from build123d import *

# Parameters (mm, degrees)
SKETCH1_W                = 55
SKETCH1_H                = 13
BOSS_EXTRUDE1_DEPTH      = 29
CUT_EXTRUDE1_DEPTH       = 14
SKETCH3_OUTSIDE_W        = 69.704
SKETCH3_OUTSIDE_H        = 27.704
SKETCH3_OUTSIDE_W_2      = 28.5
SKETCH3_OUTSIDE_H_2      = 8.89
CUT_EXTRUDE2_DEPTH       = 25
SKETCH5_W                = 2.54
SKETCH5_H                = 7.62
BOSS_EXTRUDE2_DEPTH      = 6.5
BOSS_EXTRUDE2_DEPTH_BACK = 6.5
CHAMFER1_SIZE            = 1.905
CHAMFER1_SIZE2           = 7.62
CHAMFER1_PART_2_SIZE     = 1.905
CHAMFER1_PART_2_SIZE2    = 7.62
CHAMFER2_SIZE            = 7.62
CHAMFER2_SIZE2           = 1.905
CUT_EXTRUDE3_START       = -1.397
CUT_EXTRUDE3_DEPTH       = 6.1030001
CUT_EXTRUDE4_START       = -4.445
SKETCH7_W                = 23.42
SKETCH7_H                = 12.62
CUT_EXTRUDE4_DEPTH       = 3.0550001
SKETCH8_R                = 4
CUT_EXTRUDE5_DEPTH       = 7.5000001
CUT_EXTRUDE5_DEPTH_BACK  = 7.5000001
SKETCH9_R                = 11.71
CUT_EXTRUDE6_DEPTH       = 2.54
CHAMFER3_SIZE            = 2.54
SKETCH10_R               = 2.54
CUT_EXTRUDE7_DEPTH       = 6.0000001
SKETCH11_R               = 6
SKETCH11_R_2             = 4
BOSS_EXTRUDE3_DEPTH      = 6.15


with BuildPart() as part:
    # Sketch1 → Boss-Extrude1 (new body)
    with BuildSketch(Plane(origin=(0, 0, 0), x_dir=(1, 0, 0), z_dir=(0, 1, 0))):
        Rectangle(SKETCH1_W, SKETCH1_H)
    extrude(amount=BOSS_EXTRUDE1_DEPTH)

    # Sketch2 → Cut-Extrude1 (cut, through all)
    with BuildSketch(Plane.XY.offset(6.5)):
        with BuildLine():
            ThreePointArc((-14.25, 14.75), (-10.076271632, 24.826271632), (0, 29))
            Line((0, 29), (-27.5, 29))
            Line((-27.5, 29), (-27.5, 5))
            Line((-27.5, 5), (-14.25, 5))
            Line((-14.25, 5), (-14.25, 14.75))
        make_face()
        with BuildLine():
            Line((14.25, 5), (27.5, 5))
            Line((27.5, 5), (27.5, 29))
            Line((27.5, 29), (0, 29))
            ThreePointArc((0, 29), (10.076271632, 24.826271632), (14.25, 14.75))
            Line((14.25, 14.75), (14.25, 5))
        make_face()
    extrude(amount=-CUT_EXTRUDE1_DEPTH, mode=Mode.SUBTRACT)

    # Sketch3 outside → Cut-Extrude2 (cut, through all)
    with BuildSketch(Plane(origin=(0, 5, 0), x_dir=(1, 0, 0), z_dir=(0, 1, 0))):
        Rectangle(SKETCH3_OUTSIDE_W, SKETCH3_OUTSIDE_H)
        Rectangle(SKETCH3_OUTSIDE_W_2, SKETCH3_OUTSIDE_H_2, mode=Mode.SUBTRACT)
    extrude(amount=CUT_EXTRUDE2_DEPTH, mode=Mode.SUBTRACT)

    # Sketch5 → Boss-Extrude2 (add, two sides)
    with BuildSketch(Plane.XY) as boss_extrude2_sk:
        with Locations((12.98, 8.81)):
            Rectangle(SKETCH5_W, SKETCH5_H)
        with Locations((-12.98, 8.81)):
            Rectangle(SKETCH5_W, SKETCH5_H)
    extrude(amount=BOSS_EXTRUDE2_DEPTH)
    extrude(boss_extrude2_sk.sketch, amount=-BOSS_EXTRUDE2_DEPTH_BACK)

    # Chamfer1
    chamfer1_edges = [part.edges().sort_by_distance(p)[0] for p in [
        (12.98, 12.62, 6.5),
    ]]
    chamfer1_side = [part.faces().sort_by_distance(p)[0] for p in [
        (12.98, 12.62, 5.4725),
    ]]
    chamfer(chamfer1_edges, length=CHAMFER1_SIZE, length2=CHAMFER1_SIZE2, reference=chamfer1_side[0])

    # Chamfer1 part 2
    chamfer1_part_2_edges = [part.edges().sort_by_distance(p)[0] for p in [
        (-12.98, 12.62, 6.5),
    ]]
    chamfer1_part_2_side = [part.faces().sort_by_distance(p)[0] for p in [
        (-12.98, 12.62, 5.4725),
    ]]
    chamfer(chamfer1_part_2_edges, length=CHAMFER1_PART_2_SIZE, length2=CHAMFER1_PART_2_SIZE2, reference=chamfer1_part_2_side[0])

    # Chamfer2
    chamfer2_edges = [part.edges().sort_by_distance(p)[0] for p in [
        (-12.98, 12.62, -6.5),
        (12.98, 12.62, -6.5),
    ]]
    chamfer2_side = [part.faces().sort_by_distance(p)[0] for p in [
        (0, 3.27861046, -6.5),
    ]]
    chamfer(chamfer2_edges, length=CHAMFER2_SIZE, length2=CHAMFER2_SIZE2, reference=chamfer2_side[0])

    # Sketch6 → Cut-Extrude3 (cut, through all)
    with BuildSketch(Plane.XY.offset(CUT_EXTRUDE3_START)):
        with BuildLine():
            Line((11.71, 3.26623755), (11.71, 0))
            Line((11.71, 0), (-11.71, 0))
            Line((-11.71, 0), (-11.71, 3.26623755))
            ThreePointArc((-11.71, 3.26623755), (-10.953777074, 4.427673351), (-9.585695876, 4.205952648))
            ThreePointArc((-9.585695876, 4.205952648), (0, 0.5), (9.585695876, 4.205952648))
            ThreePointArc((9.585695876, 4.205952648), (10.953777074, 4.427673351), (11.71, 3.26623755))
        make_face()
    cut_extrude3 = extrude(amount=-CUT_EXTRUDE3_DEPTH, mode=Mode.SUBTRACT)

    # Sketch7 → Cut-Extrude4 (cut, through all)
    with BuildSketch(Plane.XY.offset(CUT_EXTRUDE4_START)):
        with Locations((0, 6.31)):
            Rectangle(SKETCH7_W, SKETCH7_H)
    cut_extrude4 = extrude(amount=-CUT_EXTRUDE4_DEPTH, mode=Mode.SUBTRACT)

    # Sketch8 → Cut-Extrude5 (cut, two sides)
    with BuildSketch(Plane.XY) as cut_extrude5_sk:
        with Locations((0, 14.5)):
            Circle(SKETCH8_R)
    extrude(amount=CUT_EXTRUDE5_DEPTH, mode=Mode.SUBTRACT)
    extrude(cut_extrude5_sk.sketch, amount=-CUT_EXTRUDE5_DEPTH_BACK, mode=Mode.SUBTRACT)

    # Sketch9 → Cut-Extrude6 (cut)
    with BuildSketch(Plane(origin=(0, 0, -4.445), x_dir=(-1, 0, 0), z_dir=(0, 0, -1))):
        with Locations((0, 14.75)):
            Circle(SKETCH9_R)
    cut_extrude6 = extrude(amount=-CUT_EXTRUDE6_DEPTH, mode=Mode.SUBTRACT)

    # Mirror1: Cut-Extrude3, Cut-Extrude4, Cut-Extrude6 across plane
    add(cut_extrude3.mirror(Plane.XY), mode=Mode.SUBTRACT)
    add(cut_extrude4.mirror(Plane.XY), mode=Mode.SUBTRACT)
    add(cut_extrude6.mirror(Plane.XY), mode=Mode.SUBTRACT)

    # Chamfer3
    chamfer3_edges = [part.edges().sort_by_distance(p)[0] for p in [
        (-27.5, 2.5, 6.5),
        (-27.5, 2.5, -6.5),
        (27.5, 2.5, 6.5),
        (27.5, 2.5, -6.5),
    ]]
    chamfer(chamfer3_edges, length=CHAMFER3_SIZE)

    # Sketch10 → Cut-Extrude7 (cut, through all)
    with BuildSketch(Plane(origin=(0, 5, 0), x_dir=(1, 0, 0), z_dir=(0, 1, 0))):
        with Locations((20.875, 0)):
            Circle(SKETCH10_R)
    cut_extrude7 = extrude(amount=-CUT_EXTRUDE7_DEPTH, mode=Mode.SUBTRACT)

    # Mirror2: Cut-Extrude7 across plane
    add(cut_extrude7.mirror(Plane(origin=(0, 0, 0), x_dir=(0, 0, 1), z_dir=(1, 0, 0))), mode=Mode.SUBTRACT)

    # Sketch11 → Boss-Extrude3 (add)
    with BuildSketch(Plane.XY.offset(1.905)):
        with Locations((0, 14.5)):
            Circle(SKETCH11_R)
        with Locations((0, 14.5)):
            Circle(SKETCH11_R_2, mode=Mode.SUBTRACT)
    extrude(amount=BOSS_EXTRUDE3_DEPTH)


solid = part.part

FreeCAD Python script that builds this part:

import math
import FreeCAD as App
import Part
import Sketcher
Q = App.Units.Quantity


def edges_at(feature, points):
    """Names of the edges that pass closest to the given points."""
    edges = feature.Shape.Edges
    near = lambda p: min(range(len(edges)), key=lambda i: edges[i].distToShape(Part.Vertex(*p))[0])
    return sorted({f"Edge{near(p) + 1}" for p in points})


def add_polygon(sketch, points):
    """Adds a closed chain of lines whose ends are joined by coincident constraints."""
    first, n = sketch.GeometryCount, len(points)
    for a, b in zip(points, points[1:] + points[:1]):
        sketch.addGeometry(Part.LineSegment(App.Vector(*a, 0), App.Vector(*b, 0)), False)
    for i in range(n):
        sketch.addConstraint(Sketcher.Constraint("Coincident", first + i, 2, first + (i + 1) % n, 1))

doc = App.newDocument("Part")
body = doc.addObject("PartDesign::Body", "Body")

# Sketch on XZ plane
sketch1 = doc.addObject("Sketcher::SketchObject", "Sketch")
body.addObject(sketch1)
sketch1.AttachmentSupport = (doc.XZ_Plane, [""])
sketch1.MapMode = "FlatFace"
add_polygon(sketch1, [(-28, -6), (-28, 6), (28, 6), (28, -6)])  # lines 0-3
sketch1.addConstraint(Sketcher.Constraint("Vertical", 0))
sketch1.addConstraint(Sketcher.Constraint("Horizontal", 1))
sketch1.addConstraint(Sketcher.Constraint("Vertical", 2))
sketch1.addConstraint(Sketcher.Constraint("Horizontal", 3))
sketch1.addConstraint(Sketcher.Constraint("Symmetric", 0, 2, 2, 2, -1, 1))
sketch1.addConstraint(Sketcher.Constraint("DistanceX", 1, 1, 1, 2, Q("55 mm")))
sketch1.addConstraint(Sketcher.Constraint("DistanceY", 0, 1, 0, 2, Q("13 mm")))
pad1 = doc.addObject("PartDesign::Pad", "Pad")
body.addObject(pad1)
pad1.Profile = sketch1
pad1.Length = 29
pad1.Reversed = True

# Sketch on XY plane
sketch2 = doc.addObject("Sketcher::SketchObject", "Sketch001")
body.addObject(sketch2)
sketch2.AttachmentSupport = (doc.XY_Plane, [""])
sketch2.MapMode = "FlatFace"
sketch2.AttachmentOffset = App.Placement(App.Vector(0, 0, 6.5), App.Rotation())
sketch2.addGeometry(Part.ArcOfCircle(Part.Circle(App.Vector(0, 15, 0), App.Vector(0, 0, 1), 14), math.radians(90), math.radians(180)), False)
sketch2.addGeometry(Part.LineSegment(App.Vector(0, 29, 0), App.Vector(-28, 29, 0)), False)
sketch2.addGeometry(Part.LineSegment(App.Vector(-28, 29, 0), App.Vector(-28, 5, 0)), False)
sketch2.addGeometry(Part.LineSegment(App.Vector(-28, 5, 0), App.Vector(-14, 5, 0)), False)
sketch2.addGeometry(Part.LineSegment(App.Vector(-14, 5, 0), App.Vector(-14, 15, 0)), False)
sketch2.addGeometry(Part.LineSegment(App.Vector(14, 5, 0), App.Vector(28, 5, 0)), False)
sketch2.addGeometry(Part.LineSegment(App.Vector(28, 5, 0), App.Vector(28, 29, 0)), False)
sketch2.addGeometry(Part.LineSegment(App.Vector(28, 29, 0), App.Vector(0, 29, 0)), False)
sketch2.addGeometry(Part.ArcOfCircle(Part.Circle(App.Vector(0, 15, 0), App.Vector(0, 0, 1), 14), math.radians(0), math.radians(90)), False)
sketch2.addGeometry(Part.LineSegment(App.Vector(14, 15, 0), App.Vector(14, 5, 0)), False)
sketch2.addConstraint(Sketcher.Constraint("Tangent", 0, 1, 1, 1))
sketch2.addConstraint(Sketcher.Constraint("Coincident", 1, 2, 2, 1))
sketch2.addConstraint(Sketcher.Constraint("Coincident", 2, 2, 3, 1))
sketch2.addConstraint(Sketcher.Constraint("Coincident", 3, 2, 4, 1))
sketch2.addConstraint(Sketcher.Constraint("Tangent", 4, 2, 0, 2))
sketch2.addConstraint(Sketcher.Constraint("Coincident", 5, 2, 6, 1))
sketch2.addConstraint(Sketcher.Constraint("Coincident", 6, 2, 7, 1))
sketch2.addConstraint(Sketcher.Constraint("Tangent", 7, 2, 8, 2))
sketch2.addConstraint(Sketcher.Constraint("Tangent", 8, 1, 9, 1))
sketch2.addConstraint(Sketcher.Constraint("Coincident", 9, 2, 5, 1))
sketch2.addConstraint(Sketcher.Constraint("Horizontal", 1))
sketch2.addConstraint(Sketcher.Constraint("Vertical", 2))
sketch2.addConstraint(Sketcher.Constraint("Horizontal", 3))
sketch2.addConstraint(Sketcher.Constraint("Vertical", 4))
sketch2.addConstraint(Sketcher.Constraint("Horizontal", 5))
sketch2.addConstraint(Sketcher.Constraint("Vertical", 6))
sketch2.addConstraint(Sketcher.Constraint("Horizontal", 7))
sketch2.addConstraint(Sketcher.Constraint("Vertical", 9))
sketch2.addConstraint(Sketcher.Constraint("Coincident", 8, 3, 0, 3))
sketch2.addConstraint(Sketcher.Constraint("Equal", 0, 8))
sketch2.addConstraint(Sketcher.Constraint("Symmetric", 2, 2, 5, 2, -2))
sketch2.addConstraint(Sketcher.Constraint("PointOnObject", 0, 3, -2))
sketch2.addConstraint(Sketcher.Constraint("DistanceY", 2, 2, 2, 1, Q("24 mm")))
sketch2.addConstraint(Sketcher.Constraint("Radius", 0, Q("14.25 mm")))
sketch2.addConstraint(Sketcher.Constraint("DistanceX", 1, 2, 1, 1, Q("27.5 mm")))
sketch2.addConstraint(Sketcher.Constraint("DistanceY", -1, 1, 0, 1, Q("29 mm")))
pocket1 = doc.addObject("PartDesign::Pocket", "Pocket")
body.addObject(pocket1)
pocket1.Profile = sketch2
pocket1.Type = "ThroughAll"

# Sketch on XZ plane
sketch3 = doc.addObject("Sketcher::SketchObject", "Sketch002")
body.addObject(sketch3)
sketch3.AttachmentSupport = (doc.XZ_Plane, [""])
sketch3.MapMode = "FlatFace"
sketch3.AttachmentOffset = App.Placement(App.Vector(0, 0, -5), App.Rotation())
add_polygon(sketch3, [(-35, -14), (-35, 14), (35, 14), (35, -14)])  # lines 0-3
add_polygon(sketch3, [(14, 4), (-14, 4), (-14, -4), (14, -4)])  # lines 4-7
sketch3.addConstraint(Sketcher.Constraint("Vertical", 0))
sketch3.addConstraint(Sketcher.Constraint("Horizontal", 1))
sketch3.addConstraint(Sketcher.Constraint("Vertical", 2))
sketch3.addConstraint(Sketcher.Constraint("Horizontal", 3))
sketch3.addConstraint(Sketcher.Constraint("Horizontal", 4))
sketch3.addConstraint(Sketcher.Constraint("Vertical", 5))
sketch3.addConstraint(Sketcher.Constraint("Horizontal", 6))
sketch3.addConstraint(Sketcher.Constraint("Vertical", 7))
sketch3.addConstraint(Sketcher.Constraint("Symmetric", 0, 2, 2, 2, -1, 1))
sketch3.addConstraint(Sketcher.Constraint("Symmetric", 4, 2, 6, 2, -1, 1))
sketch3.addConstraint(Sketcher.Constraint("DistanceX", 4, 2, 4, 1, Q("28.5 mm")))
sketch3.addConstraint(Sketcher.Constraint("DistanceY", 5, 2, 5, 1, Q("8.89 mm")))
sketch3.addConstraint(Sketcher.Constraint("DistanceX", 1, 1, 1, 2, Q("69.704 mm")))
sketch3.addConstraint(Sketcher.Constraint("DistanceY", 0, 1, 0, 2, Q("27.704 mm")))
pocket2 = doc.addObject("PartDesign::Pocket", "Pocket001")
body.addObject(pocket2)
pocket2.Profile = sketch3
pocket2.Type = "ThroughAll"

# Sketch on XY plane
sketch4 = doc.addObject("Sketcher::SketchObject", "Sketch003")
body.addObject(sketch4)
sketch4.AttachmentSupport = (doc.XY_Plane, [""])
sketch4.MapMode = "FlatFace"
add_polygon(sketch4, [(11.7, 12.6), (11.7, 5), (14.2, 5), (14.2, 12.6)])  # lines 0-3
add_polygon(sketch4, [(-14.2, 12.6), (-14.2, 5), (-11.7, 5), (-11.7, 12.6)])  # lines 4-7
sketch4.addConstraint(Sketcher.Constraint("Vertical", 0))
sketch4.addConstraint(Sketcher.Constraint("Horizontal", 1))
sketch4.addConstraint(Sketcher.Constraint("Vertical", 2))
sketch4.addConstraint(Sketcher.Constraint("Horizontal", 3))
sketch4.addConstraint(Sketcher.Constraint("Vertical", 4))
sketch4.addConstraint(Sketcher.Constraint("Horizontal", 5))
sketch4.addConstraint(Sketcher.Constraint("Vertical", 6))
sketch4.addConstraint(Sketcher.Constraint("Horizontal", 7))
sketch4.addConstraint(Sketcher.Constraint("Symmetric", 1, 2, 4, 2, -2))
sketch4.addConstraint(Sketcher.Constraint("Symmetric", 3, 2, 6, 2, -2))
sketch4.addConstraint(Sketcher.Constraint("DistanceY", -1, 1, 0, 2, Q("5 mm")))
sketch4.addConstraint(Sketcher.Constraint("DistanceX", 1, 1, 1, 2, Q("2.54 mm")))
sketch4.addConstraint(Sketcher.Constraint("DistanceY", 0, 2, 0, 1, Q("7.62 mm")))
sketch4.addConstraint(Sketcher.Constraint("DistanceX", 4, 2, 1, 2, Q("28.5 mm")))
pad2 = doc.addObject("PartDesign::Pad", "Pad001")
body.addObject(pad2)
pad2.Profile = sketch4
pad2.Type = "TwoLengths"
pad2.Length = 6.5
pad2.Length2 = 6.5
doc.recompute()

chamfer = doc.addObject("PartDesign::Chamfer", "Chamfer")
body.addObject(chamfer)
chamfer.Base = (pad2, edges_at(pad2, [(12.98, 12.62, 6.5)]))
chamfer.ChamferType = "Two distances"
chamfer.Size = 1.905
chamfer.Size2 = 7.62
chamfer.FlipDirection = True
doc.recompute()

chamfer2 = doc.addObject("PartDesign::Chamfer", "Chamfer001")
body.addObject(chamfer2)
chamfer2.Base = (chamfer, edges_at(chamfer, [(-12.98, 12.62, 6.5)]))
chamfer2.ChamferType = "Two distances"
chamfer2.Size = 1.905
chamfer2.Size2 = 7.62
chamfer2.FlipDirection = True
doc.recompute()

chamfer3 = doc.addObject("PartDesign::Chamfer", "Chamfer002")
body.addObject(chamfer3)
chamfer3.Base = (chamfer2, edges_at(chamfer2, [(-12.98, 12.62, -6.5), (12.98, 12.62, -6.5)]))
chamfer3.ChamferType = "Two distances"
chamfer3.Size = 7.62
chamfer3.Size2 = 1.905

# Sketch on XY plane
sketch5 = doc.addObject("Sketcher::SketchObject", "Sketch004")
body.addObject(sketch5)
sketch5.AttachmentSupport = (doc.XY_Plane, [""])
sketch5.MapMode = "FlatFace"
sketch5.AttachmentOffset = App.Placement(App.Vector(0, 0, -1.397), App.Rotation())
sketch5.addGeometry(Part.LineSegment(App.Vector(11.7, 0, 0), App.Vector(11.7, 3.3, 0)), False)
sketch5.addGeometry(Part.ArcOfCircle(Part.Circle(App.Vector(10.4, 3.3, 0), App.Vector(0, 0, 1), 1.3), math.radians(0), math.radians(132)), False)
sketch5.addGeometry(Part.ArcOfCircle(Part.Circle(App.Vector(0, 14.7, 0), App.Vector(0, 0, 1), 14.2), math.radians(-132), math.radians(-48)), False)
sketch5.addGeometry(Part.ArcOfCircle(Part.Circle(App.Vector(-10.4, 3.3, 0), App.Vector(0, 0, 1), 1.3), math.radians(48), math.radians(180)), False)
sketch5.addGeometry(Part.LineSegment(App.Vector(-11.7, 3.3, 0), App.Vector(-11.7, 0, 0)), False)
sketch5.addGeometry(Part.LineSegment(App.Vector(-11.7, 0, 0), App.Vector(11.7, 0, 0)), False)
sketch5.addConstraint(Sketcher.Constraint("Tangent", 0, 2, 1, 1))
sketch5.addConstraint(Sketcher.Constraint("Tangent", 1, 2, 2, 2))
sketch5.addConstraint(Sketcher.Constraint("Tangent", 2, 1, 3, 1))
sketch5.addConstraint(Sketcher.Constraint("Tangent", 3, 2, 4, 1))
sketch5.addConstraint(Sketcher.Constraint("Coincident", 4, 2, 5, 1))
sketch5.addConstraint(Sketcher.Constraint("Coincident", 5, 2, 0, 1))
sketch5.addConstraint(Sketcher.Constraint("Vertical", 0))
sketch5.addConstraint(Sketcher.Constraint("Vertical", 4))
sketch5.addConstraint(Sketcher.Constraint("Horizontal", 5))
sketch5.addConstraint(Sketcher.Constraint("Equal", 1, 3))
sketch5.addConstraint(Sketcher.Constraint("Symmetric", 4, 2, 5, 2, -1, 1))
sketch5.addConstraint(Sketcher.Constraint("PointOnObject", 2, 3, -2))
sketch5.addConstraint(Sketcher.Constraint("Radius", 1, Q("1.27 mm")))
sketch5.addConstraint(Sketcher.Constraint("Radius", 2, Q("14.25 mm")))
sketch5.addConstraint(Sketcher.Constraint("DistanceX", 5, 1, 5, 2, Q("23.42 mm")))
sketch5.addConstraint(Sketcher.Constraint("DistanceY", -1, 1, 2, 3, Q("14.75 mm")))
pocket3 = doc.addObject("PartDesign::Pocket", "Pocket002")
body.addObject(pocket3)
pocket3.Profile = sketch5
pocket3.Type = "ThroughAll"

# Sketch on XY plane
sketch6 = doc.addObject("Sketcher::SketchObject", "Sketch005")
body.addObject(sketch6)
sketch6.AttachmentSupport = (doc.XY_Plane, [""])
sketch6.MapMode = "FlatFace"
sketch6.AttachmentOffset = App.Placement(App.Vector(0, 0, -4.445), App.Rotation())
add_polygon(sketch6, [(-12, 13), (-12, 0), (12, 0), (12, 13)])  # lines 0-3
sketch6.addConstraint(Sketcher.Constraint("Vertical", 0))
sketch6.addConstraint(Sketcher.Constraint("Horizontal", 1))
sketch6.addConstraint(Sketcher.Constraint("Vertical", 2))
sketch6.addConstraint(Sketcher.Constraint("Horizontal", 3))
sketch6.addConstraint(Sketcher.Constraint("Symmetric", 0, 2, 1, 2, -1, 1))
sketch6.addConstraint(Sketcher.Constraint("DistanceX", 1, 1, 1, 2, Q("23.42 mm")))
sketch6.addConstraint(Sketcher.Constraint("DistanceY", 0, 2, 0, 1, Q("12.62 mm")))
pocket4 = doc.addObject("PartDesign::Pocket", "Pocket003")
body.addObject(pocket4)
pocket4.Profile = sketch6
pocket4.Type = "ThroughAll"

# Sketch on XY plane
sketch7 = doc.addObject("Sketcher::SketchObject", "Sketch006")
body.addObject(sketch7)
sketch7.AttachmentSupport = (doc.XY_Plane, [""])
sketch7.MapMode = "FlatFace"
sketch7.addGeometry(Part.Circle(App.Vector(0, 14.5, 0), App.Vector(0, 0, 1), 4), False)
sketch7.addConstraint(Sketcher.Constraint("PointOnObject", 0, 3, -2))
sketch7.addConstraint(Sketcher.Constraint("Diameter", 0, Q("8 mm")))
sketch7.addConstraint(Sketcher.Constraint("DistanceY", -1, 1, 0, 3, Q("14.5 mm")))
pocket5 = doc.addObject("PartDesign::Pocket", "Pocket004")
body.addObject(pocket5)
pocket5.Profile = sketch7
pocket5.Type = "ThroughAll"
pocket5.Midplane = True

# Sketch on XY plane
sketch8 = doc.addObject("Sketcher::SketchObject", "Sketch007")
body.addObject(sketch8)
sketch8.AttachmentSupport = (doc.XY_Plane, [""])
sketch8.MapMode = "FlatFace"
sketch8.AttachmentOffset = App.Placement(App.Vector(0, 0, -4.445), App.Rotation())
sketch8.addGeometry(Part.Circle(App.Vector(0, 15, 0), App.Vector(0, 0, 1), 12), False)
sketch8.addConstraint(Sketcher.Constraint("PointOnObject", 0, 3, -2))
sketch8.addConstraint(Sketcher.Constraint("Diameter", 0, Q("23.42 mm")))
sketch8.addConstraint(Sketcher.Constraint("DistanceY", -1, 1, 0, 3, Q("14.75 mm")))
pocket6 = doc.addObject("PartDesign::Pocket", "Pocket005")
body.addObject(pocket6)
pocket6.Profile = sketch8
pocket6.Length = 2.54
pocket6.Reversed = True
doc.recompute()

mirrored = doc.addObject("PartDesign::Mirrored", "Mirrored")
body.addObject(mirrored)
mirrored.Originals = [pocket3, pocket4, pocket6]
mirrored.MirrorPlane = (doc.XY_Plane, [""])
body.Tip = mirrored
doc.recompute()

chamfer4 = doc.addObject("PartDesign::Chamfer", "Chamfer003")
body.addObject(chamfer4)
chamfer4.Base = (mirrored, edges_at(mirrored, [
    (-27.5, 2.5, 6.5),
    (-27.5, 2.5, -6.5),
    (27.5, 2.5, 6.5),
    (27.5, 2.5, -6.5),
]))
chamfer4.Size = 2.54

# Sketch on XZ plane
sketch9 = doc.addObject("Sketcher::SketchObject", "Sketch008")
body.addObject(sketch9)
sketch9.AttachmentSupport = (doc.XZ_Plane, [""])
sketch9.MapMode = "FlatFace"
sketch9.AttachmentOffset = App.Placement(App.Vector(0, 0, -5), App.Rotation())
sketch9.addGeometry(Part.Circle(App.Vector(20.9, 0, 0), App.Vector(0, 0, 1), 2.5), False)
sketch9.addConstraint(Sketcher.Constraint("PointOnObject", 0, 3, -1))
sketch9.addConstraint(Sketcher.Constraint("Diameter", 0, Q("5.08 mm")))
sketch9.addConstraint(Sketcher.Constraint("DistanceX", -1, 1, 0, 3, Q("20.875 mm")))
pocket7 = doc.addObject("PartDesign::Pocket", "Pocket006")
body.addObject(pocket7)
pocket7.Profile = sketch9
pocket7.Type = "ThroughAll"
pocket7.Reversed = True
doc.recompute()

mirrored2 = doc.addObject("PartDesign::Mirrored", "Mirrored001")
body.addObject(mirrored2)
mirrored2.Originals = [pocket7]
mirrored2.MirrorPlane = (doc.YZ_Plane, [""])
body.Tip = mirrored2

# Sketch on XY plane
sketch10 = doc.addObject("Sketcher::SketchObject", "Sketch009")
body.addObject(sketch10)
sketch10.AttachmentSupport = (doc.XY_Plane, [""])
sketch10.MapMode = "FlatFace"
sketch10.AttachmentOffset = App.Placement(App.Vector(0, 0, 1.905), App.Rotation())
sketch10.addGeometry(Part.Circle(App.Vector(0, 14.5, 0), App.Vector(0, 0, 1), 6), False)
sketch10.addGeometry(Part.Circle(App.Vector(0, 14.5, 0), App.Vector(0, 0, 1), 4), False)
sketch10.addConstraint(Sketcher.Constraint("Coincident", 1, 3, 0, 3))
sketch10.addConstraint(Sketcher.Constraint("PointOnObject", 0, 3, -2))
sketch10.addConstraint(Sketcher.Constraint("Diameter", 0, Q("12 mm")))
sketch10.addConstraint(Sketcher.Constraint("Diameter", 1, Q("8 mm")))
sketch10.addConstraint(Sketcher.Constraint("DistanceY", -1, 1, 0, 3, Q("14.5 mm")))
pad3 = doc.addObject("PartDesign::Pad", "Pad002")
body.addObject(pad3)
pad3.Profile = sketch10
pad3.Length = 6.15

doc.recompute()
